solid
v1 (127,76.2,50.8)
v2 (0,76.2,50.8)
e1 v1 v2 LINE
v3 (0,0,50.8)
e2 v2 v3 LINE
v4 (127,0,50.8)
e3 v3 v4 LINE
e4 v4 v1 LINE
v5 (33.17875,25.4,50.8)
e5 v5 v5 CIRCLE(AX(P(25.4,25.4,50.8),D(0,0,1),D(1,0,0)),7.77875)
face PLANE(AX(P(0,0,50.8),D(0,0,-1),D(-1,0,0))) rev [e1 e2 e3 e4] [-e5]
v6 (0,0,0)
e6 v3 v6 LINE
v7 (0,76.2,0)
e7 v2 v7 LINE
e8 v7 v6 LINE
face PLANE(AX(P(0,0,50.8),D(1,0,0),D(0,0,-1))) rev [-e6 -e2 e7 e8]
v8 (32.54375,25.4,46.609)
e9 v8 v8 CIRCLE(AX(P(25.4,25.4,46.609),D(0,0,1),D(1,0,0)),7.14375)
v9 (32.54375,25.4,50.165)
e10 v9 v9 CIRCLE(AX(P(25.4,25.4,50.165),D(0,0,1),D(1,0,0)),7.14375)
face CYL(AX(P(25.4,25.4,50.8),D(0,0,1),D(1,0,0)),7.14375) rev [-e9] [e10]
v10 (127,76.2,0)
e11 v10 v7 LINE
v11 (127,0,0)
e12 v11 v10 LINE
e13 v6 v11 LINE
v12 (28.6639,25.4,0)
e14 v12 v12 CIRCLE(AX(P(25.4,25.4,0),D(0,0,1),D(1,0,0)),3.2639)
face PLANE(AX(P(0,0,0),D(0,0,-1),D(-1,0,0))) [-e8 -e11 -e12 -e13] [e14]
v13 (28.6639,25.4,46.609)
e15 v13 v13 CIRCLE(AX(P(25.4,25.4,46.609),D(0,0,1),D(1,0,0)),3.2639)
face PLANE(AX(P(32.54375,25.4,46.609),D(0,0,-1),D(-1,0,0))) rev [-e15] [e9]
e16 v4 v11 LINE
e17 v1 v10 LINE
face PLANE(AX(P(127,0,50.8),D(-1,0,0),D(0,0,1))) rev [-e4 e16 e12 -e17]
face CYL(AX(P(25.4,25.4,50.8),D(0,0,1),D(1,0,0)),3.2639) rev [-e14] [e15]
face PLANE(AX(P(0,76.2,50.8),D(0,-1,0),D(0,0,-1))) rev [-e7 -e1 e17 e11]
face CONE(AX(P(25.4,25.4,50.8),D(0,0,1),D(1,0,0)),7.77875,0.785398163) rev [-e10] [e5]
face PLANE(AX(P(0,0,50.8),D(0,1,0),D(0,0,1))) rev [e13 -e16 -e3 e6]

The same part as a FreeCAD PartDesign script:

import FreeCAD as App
import Part
import Sketcher
from FreeCAD import Vector
Q = App.Units.Quantity


def add_polygon(sketch, points):
    """Adds a closed chain of lines whose ends are joined by coincident constraints."""
    first, n = sketch.GeometryCount, len(points)
    for a, b in zip(points, points[1:] + points[:1]):
        sketch.addGeometry(Part.LineSegment(App.Vector(*a, 0), App.Vector(*b, 0)), False)
    for i in range(n):
        sketch.addConstraint(Sketcher.Constraint("Coincident", first + i, 2, first + (i + 1) % n, 1))

doc = App.newDocument("Part")
params = doc.addObject("Spreadsheet::Sheet", "Params")
for row, (alias, value) in enumerate([
    ("sketch1_width", "5 in"),
    ("sketch1_height", "3 in"),
    ("pad1_length", "2 in"),
    ("sketch2_height", "2 in"),
    ("sketch2_height2", "0.14 in"),
    ("sketch2_height3", "1.835 in"),
    ("groove_angle", "360 deg"),
], start=1):
    params.set(f"A{row}", alias)
    params.set(f"B{row}", "=" + value)
    params.setAlias(f"B{row}", alias)

body = doc.addObject("PartDesign::Body", "Body")

# Sketch on XY plane
sketch1 = body.newObject("Sketcher::SketchObject", "Sketch")
sketch1.AttachmentSupport = (doc.getObject("XY_Plane"), [""])
sketch1.MapMode = "FlatFace"
add_polygon(sketch1, [(0, 76), (0, 0), (127, 0), (127, 76)])  # lines 0-3
sketch1.addConstraint([
    Sketcher.Constraint("Vertical", 0),
    Sketcher.Constraint("Horizontal", 1),
    Sketcher.Constraint("Vertical", 2),
    Sketcher.Constraint("Horizontal", 3),
    Sketcher.Constraint("Coincident", 0, 2, -1, 1),
    Sketcher.Constraint("DistanceX", 1, 1, 1, 2, Q("5 in")),
    Sketcher.Constraint("DistanceY", 0, 2, 0, 1, Q("3 in")),
])
sketch1.setExpression("Constraints[9]", "Params.sketch1_width")
sketch1.setExpression("Constraints[10]", "Params.sketch1_height")
pad1 = body.newObject("PartDesign::Pad", "Pad")
pad1.Profile = sketch1
pad1.setExpression("Length", "Params.pad1_length")

# Sketch on YZ plane
sketch2 = body.newObject("Sketcher::SketchObject", "Sketch001")
sketch2.AttachmentSupport = (doc.getObject("YZ_Plane"), [""])
sketch2.MapMode = "FlatFace"
sketch2.AttachmentOffset = App.Placement(Vector(0, 0, 1 * 25.4), App.Rotation())
add_polygon(sketch2, [(25.4, 0), (25.4, 50.8), (17.6, 50.8), (18.3, 50.2), (18.3, 46.6), (22.1, 46.6), (22.1, 0)])  # lines 0-6
sketch2.addGeometry(Part.LineSegment(Vector(25.4, 50.8, 0), Vector(25.4, 0, 0)), True)  # axis
sketch2.addConstraint([
    Sketcher.Constraint("Vertical", 0),
    Sketcher.Constraint("Horizontal", 1),
    Sketcher.Constraint("Vertical", 3),
    Sketcher.Constraint("Horizontal", 4),
    Sketcher.Constraint("Vertical", 5),
    Sketcher.Constraint("Horizontal", 6),
    Sketcher.Constraint("Vertical", 7),
    Sketcher.Constraint("Coincident", 7, 1, 0, 2),
    Sketcher.Constraint("PointOnObject", 5, 2, -1),
    Sketcher.Constraint("PointOnObject", 7, 2, -1),
    Sketcher.Constraint("DistanceY", 0, 1, 0, 2, Q("2 in")),
    Sketcher.Constraint("DistanceX", -1, 1, 0, 2, Q("1 in")),
    Sketcher.Constraint("Angle", 2, Q("-45 deg")),
    Sketcher.Constraint("DistanceY", 3, 2, 3, 1, Q("0.14 in")),
    Sketcher.Constraint("DistanceY", 5, 2, 5, 1, Q("1.835 in")),
    Sketcher.Constraint("DistanceX", 6, 1, 6, 2, Q("0.1285 in")),
    Sketcher.Constraint("DistanceX", -1, 1, 2, 2, Q("0.71875 in")),
])
sketch2.setExpression("Constraints[17]", "Params.sketch2_height")
sketch2.setExpression("Constraints[20]", "Params.sketch2_height2")
sketch2.setExpression("Constraints[21]", "Params.sketch2_height3")
groove = body.newObject("PartDesign::Groove", "Groove")
groove.Profile = sketch2
groove.ReferenceAxis = (sketch2, ["Axis0"])
groove.setExpression("Angle", "Params.groove_angle")

doc.recompute()
